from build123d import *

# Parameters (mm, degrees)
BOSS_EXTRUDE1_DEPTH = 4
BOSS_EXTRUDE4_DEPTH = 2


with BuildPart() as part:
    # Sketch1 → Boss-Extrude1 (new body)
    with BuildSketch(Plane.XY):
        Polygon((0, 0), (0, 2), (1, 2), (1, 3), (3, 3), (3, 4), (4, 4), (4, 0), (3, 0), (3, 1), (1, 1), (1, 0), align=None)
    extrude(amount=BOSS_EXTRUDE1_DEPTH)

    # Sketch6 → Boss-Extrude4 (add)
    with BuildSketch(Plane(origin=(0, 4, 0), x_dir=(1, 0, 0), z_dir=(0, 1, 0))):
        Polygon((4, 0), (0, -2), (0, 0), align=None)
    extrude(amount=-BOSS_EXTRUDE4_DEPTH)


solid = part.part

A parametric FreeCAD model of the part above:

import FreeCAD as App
import Part
import Sketcher

V = App.Vector

doc = App.newDocument("Part")
body = doc.addObject("PartDesign::Body", "Body")

# Sketch on XY plane
sketch1 = body.newObject("Sketcher::SketchObject", "Sketch")
sketch1.AttachmentSupport = (doc.getObject("XY_Plane"), [""])
sketch1.MapMode = "FlatFace"
sketch1.addGeometry([
    Part.LineSegment(V(0, 2, 0), V(0, 0, 0)),  # 0
    Part.LineSegment(V(0, 0, 0), V(1, 0, 0)),  # 1
    Part.LineSegment(V(1, 0, 0), V(1, 1, 0)),  # 2
    Part.LineSegment(V(1, 1, 0), V(3, 1, 0)),  # 3
    Part.LineSegment(V(3, 1, 0), V(3, 0, 0)),  # 4
    Part.LineSegment(V(3, 0, 0), V(4, 0, 0)),  # 5
    Part.LineSegment(V(4, 0, 0), V(4, 4, 0)),  # 6
    Part.LineSegment(V(4, 4, 0), V(3, 4, 0)),  # 7
    Part.LineSegment(V(3, 4, 0), V(3, 3, 0)),  # 8
    Part.LineSegment(V(3, 3, 0), V(1, 3, 0)),  # 9
    Part.LineSegment(V(1, 3, 0), V(1, 2, 0)),  # 10
    Part.LineSegment(V(1, 2, 0), V(0, 2, 0)),  # 11
], False)
sketch1.addConstraint([
    Sketcher.Constraint("Coincident", 0, 2, 1, 1),
    Sketcher.Constraint("Coincident", 1, 2, 2, 1),
    Sketcher.Constraint("Coincident", 2, 2, 3, 1),
    Sketcher.Constraint("Coincident", 3, 2, 4, 1),
    Sketcher.Constraint("Coincident", 4, 2, 5, 1),
    Sketcher.Constraint("Coincident", 5, 2, 6, 1),
    Sketcher.Constraint("Coincident", 6, 2, 7, 1),
    Sketcher.Constraint("Coincident", 7, 2, 8, 1),
    Sketcher.Constraint("Coincident", 8, 2, 9, 1),
    Sketcher.Constraint("Coincident", 9, 2, 10, 1),
    Sketcher.Constraint("Coincident", 10, 2, 11, 1),
    Sketcher.Constraint("Coincident", 11, 2, 0, 1),
    Sketcher.Constraint("Vertical", 0),
    Sketcher.Constraint("Horizontal", 1),
    Sketcher.Constraint("Vertical", 2),
    Sketcher.Constraint("Horizontal", 3),
    Sketcher.Constraint("Vertical", 4),
    Sketcher.Constraint("Horizontal", 5),
    Sketcher.Constraint("Vertical", 6),
    Sketcher.Constraint("Horizontal", 7),
    Sketcher.Constraint("Vertical", 8),
    Sketcher.Constraint("Horizontal", 9),
    Sketcher.Constraint("Vertical", 10),
    Sketcher.Constraint("Horizontal", 11),
    Sketcher.Constraint("Coincident", 0, 2, -1, 1),
    Sketcher.Constraint("PointOnObject", 4, 2, -1),
    Sketcher.Constraint("Vertical", 4, 2, 7, 2),
    Sketcher.Constraint("Vertical", 2, 2, 9, 2),
    Sketcher.Constraint("Equal", 1, 5),
    Sketcher.Constraint("Equal", 9, 0),
    Sketcher.Constraint("Equal", 11, 2),
    Sketcher.Constraint("Equal", 4, 8),
    Sketcher.Constraint("Equal", 8, 10),
    Sketcher.Constraint("DistanceX", 1, 1, 1, 2, 1.0),
    Sketcher.Constraint("DistanceX", 3, 1, 3, 2, 2.0),
])
pad1 = body.newObject("PartDesign::Pad", "Pad")
pad1.Profile = sketch1
pad1.Length = 4

# Sketch on XZ plane
sketch2 = body.newObject("Sketcher::SketchObject", "Sketch001")
sketch2.AttachmentSupport = (doc.getObject("XZ_Plane"), [""])
sketch2.MapMode = "FlatFace"
sketch2.AttachmentOffset = App.Placement(V(0, 0, -4), App.Rotation())
sketch2.addGeometry([
    Part.LineSegment(V(0, 2, 0), V(4, 0, 0)),
    Part.LineSegment(V(4, 0, 0), V(0, 0, 0)),
    Part.LineSegment(V(0, 0, 0), V(0, 2, 0)),
], False)
sketch2.addConstraint([
    Sketcher.Constraint("Coincident", 0, 2, 1, 1),
    Sketcher.Constraint("Coincident", 1, 2, 2, 1),
    Sketcher.Constraint("Coincident", 2, 2, 0, 1),
    Sketcher.Constraint("Horizontal", 1),
    Sketcher.Constraint("Vertical", 2),
    Sketcher.Constraint("Coincident", 1, 2, -1, 1),
    Sketcher.Constraint("DistanceX", 1, 2, 1, 1, 4.0),
    Sketcher.Constraint("DistanceY", 2, 1, 2, 2, 2.0),
])
pad2 = body.newObject("PartDesign::Pad", "Pad001")
pad2.Profile = sketch2
pad2.Length = 2

doc.recompute()
